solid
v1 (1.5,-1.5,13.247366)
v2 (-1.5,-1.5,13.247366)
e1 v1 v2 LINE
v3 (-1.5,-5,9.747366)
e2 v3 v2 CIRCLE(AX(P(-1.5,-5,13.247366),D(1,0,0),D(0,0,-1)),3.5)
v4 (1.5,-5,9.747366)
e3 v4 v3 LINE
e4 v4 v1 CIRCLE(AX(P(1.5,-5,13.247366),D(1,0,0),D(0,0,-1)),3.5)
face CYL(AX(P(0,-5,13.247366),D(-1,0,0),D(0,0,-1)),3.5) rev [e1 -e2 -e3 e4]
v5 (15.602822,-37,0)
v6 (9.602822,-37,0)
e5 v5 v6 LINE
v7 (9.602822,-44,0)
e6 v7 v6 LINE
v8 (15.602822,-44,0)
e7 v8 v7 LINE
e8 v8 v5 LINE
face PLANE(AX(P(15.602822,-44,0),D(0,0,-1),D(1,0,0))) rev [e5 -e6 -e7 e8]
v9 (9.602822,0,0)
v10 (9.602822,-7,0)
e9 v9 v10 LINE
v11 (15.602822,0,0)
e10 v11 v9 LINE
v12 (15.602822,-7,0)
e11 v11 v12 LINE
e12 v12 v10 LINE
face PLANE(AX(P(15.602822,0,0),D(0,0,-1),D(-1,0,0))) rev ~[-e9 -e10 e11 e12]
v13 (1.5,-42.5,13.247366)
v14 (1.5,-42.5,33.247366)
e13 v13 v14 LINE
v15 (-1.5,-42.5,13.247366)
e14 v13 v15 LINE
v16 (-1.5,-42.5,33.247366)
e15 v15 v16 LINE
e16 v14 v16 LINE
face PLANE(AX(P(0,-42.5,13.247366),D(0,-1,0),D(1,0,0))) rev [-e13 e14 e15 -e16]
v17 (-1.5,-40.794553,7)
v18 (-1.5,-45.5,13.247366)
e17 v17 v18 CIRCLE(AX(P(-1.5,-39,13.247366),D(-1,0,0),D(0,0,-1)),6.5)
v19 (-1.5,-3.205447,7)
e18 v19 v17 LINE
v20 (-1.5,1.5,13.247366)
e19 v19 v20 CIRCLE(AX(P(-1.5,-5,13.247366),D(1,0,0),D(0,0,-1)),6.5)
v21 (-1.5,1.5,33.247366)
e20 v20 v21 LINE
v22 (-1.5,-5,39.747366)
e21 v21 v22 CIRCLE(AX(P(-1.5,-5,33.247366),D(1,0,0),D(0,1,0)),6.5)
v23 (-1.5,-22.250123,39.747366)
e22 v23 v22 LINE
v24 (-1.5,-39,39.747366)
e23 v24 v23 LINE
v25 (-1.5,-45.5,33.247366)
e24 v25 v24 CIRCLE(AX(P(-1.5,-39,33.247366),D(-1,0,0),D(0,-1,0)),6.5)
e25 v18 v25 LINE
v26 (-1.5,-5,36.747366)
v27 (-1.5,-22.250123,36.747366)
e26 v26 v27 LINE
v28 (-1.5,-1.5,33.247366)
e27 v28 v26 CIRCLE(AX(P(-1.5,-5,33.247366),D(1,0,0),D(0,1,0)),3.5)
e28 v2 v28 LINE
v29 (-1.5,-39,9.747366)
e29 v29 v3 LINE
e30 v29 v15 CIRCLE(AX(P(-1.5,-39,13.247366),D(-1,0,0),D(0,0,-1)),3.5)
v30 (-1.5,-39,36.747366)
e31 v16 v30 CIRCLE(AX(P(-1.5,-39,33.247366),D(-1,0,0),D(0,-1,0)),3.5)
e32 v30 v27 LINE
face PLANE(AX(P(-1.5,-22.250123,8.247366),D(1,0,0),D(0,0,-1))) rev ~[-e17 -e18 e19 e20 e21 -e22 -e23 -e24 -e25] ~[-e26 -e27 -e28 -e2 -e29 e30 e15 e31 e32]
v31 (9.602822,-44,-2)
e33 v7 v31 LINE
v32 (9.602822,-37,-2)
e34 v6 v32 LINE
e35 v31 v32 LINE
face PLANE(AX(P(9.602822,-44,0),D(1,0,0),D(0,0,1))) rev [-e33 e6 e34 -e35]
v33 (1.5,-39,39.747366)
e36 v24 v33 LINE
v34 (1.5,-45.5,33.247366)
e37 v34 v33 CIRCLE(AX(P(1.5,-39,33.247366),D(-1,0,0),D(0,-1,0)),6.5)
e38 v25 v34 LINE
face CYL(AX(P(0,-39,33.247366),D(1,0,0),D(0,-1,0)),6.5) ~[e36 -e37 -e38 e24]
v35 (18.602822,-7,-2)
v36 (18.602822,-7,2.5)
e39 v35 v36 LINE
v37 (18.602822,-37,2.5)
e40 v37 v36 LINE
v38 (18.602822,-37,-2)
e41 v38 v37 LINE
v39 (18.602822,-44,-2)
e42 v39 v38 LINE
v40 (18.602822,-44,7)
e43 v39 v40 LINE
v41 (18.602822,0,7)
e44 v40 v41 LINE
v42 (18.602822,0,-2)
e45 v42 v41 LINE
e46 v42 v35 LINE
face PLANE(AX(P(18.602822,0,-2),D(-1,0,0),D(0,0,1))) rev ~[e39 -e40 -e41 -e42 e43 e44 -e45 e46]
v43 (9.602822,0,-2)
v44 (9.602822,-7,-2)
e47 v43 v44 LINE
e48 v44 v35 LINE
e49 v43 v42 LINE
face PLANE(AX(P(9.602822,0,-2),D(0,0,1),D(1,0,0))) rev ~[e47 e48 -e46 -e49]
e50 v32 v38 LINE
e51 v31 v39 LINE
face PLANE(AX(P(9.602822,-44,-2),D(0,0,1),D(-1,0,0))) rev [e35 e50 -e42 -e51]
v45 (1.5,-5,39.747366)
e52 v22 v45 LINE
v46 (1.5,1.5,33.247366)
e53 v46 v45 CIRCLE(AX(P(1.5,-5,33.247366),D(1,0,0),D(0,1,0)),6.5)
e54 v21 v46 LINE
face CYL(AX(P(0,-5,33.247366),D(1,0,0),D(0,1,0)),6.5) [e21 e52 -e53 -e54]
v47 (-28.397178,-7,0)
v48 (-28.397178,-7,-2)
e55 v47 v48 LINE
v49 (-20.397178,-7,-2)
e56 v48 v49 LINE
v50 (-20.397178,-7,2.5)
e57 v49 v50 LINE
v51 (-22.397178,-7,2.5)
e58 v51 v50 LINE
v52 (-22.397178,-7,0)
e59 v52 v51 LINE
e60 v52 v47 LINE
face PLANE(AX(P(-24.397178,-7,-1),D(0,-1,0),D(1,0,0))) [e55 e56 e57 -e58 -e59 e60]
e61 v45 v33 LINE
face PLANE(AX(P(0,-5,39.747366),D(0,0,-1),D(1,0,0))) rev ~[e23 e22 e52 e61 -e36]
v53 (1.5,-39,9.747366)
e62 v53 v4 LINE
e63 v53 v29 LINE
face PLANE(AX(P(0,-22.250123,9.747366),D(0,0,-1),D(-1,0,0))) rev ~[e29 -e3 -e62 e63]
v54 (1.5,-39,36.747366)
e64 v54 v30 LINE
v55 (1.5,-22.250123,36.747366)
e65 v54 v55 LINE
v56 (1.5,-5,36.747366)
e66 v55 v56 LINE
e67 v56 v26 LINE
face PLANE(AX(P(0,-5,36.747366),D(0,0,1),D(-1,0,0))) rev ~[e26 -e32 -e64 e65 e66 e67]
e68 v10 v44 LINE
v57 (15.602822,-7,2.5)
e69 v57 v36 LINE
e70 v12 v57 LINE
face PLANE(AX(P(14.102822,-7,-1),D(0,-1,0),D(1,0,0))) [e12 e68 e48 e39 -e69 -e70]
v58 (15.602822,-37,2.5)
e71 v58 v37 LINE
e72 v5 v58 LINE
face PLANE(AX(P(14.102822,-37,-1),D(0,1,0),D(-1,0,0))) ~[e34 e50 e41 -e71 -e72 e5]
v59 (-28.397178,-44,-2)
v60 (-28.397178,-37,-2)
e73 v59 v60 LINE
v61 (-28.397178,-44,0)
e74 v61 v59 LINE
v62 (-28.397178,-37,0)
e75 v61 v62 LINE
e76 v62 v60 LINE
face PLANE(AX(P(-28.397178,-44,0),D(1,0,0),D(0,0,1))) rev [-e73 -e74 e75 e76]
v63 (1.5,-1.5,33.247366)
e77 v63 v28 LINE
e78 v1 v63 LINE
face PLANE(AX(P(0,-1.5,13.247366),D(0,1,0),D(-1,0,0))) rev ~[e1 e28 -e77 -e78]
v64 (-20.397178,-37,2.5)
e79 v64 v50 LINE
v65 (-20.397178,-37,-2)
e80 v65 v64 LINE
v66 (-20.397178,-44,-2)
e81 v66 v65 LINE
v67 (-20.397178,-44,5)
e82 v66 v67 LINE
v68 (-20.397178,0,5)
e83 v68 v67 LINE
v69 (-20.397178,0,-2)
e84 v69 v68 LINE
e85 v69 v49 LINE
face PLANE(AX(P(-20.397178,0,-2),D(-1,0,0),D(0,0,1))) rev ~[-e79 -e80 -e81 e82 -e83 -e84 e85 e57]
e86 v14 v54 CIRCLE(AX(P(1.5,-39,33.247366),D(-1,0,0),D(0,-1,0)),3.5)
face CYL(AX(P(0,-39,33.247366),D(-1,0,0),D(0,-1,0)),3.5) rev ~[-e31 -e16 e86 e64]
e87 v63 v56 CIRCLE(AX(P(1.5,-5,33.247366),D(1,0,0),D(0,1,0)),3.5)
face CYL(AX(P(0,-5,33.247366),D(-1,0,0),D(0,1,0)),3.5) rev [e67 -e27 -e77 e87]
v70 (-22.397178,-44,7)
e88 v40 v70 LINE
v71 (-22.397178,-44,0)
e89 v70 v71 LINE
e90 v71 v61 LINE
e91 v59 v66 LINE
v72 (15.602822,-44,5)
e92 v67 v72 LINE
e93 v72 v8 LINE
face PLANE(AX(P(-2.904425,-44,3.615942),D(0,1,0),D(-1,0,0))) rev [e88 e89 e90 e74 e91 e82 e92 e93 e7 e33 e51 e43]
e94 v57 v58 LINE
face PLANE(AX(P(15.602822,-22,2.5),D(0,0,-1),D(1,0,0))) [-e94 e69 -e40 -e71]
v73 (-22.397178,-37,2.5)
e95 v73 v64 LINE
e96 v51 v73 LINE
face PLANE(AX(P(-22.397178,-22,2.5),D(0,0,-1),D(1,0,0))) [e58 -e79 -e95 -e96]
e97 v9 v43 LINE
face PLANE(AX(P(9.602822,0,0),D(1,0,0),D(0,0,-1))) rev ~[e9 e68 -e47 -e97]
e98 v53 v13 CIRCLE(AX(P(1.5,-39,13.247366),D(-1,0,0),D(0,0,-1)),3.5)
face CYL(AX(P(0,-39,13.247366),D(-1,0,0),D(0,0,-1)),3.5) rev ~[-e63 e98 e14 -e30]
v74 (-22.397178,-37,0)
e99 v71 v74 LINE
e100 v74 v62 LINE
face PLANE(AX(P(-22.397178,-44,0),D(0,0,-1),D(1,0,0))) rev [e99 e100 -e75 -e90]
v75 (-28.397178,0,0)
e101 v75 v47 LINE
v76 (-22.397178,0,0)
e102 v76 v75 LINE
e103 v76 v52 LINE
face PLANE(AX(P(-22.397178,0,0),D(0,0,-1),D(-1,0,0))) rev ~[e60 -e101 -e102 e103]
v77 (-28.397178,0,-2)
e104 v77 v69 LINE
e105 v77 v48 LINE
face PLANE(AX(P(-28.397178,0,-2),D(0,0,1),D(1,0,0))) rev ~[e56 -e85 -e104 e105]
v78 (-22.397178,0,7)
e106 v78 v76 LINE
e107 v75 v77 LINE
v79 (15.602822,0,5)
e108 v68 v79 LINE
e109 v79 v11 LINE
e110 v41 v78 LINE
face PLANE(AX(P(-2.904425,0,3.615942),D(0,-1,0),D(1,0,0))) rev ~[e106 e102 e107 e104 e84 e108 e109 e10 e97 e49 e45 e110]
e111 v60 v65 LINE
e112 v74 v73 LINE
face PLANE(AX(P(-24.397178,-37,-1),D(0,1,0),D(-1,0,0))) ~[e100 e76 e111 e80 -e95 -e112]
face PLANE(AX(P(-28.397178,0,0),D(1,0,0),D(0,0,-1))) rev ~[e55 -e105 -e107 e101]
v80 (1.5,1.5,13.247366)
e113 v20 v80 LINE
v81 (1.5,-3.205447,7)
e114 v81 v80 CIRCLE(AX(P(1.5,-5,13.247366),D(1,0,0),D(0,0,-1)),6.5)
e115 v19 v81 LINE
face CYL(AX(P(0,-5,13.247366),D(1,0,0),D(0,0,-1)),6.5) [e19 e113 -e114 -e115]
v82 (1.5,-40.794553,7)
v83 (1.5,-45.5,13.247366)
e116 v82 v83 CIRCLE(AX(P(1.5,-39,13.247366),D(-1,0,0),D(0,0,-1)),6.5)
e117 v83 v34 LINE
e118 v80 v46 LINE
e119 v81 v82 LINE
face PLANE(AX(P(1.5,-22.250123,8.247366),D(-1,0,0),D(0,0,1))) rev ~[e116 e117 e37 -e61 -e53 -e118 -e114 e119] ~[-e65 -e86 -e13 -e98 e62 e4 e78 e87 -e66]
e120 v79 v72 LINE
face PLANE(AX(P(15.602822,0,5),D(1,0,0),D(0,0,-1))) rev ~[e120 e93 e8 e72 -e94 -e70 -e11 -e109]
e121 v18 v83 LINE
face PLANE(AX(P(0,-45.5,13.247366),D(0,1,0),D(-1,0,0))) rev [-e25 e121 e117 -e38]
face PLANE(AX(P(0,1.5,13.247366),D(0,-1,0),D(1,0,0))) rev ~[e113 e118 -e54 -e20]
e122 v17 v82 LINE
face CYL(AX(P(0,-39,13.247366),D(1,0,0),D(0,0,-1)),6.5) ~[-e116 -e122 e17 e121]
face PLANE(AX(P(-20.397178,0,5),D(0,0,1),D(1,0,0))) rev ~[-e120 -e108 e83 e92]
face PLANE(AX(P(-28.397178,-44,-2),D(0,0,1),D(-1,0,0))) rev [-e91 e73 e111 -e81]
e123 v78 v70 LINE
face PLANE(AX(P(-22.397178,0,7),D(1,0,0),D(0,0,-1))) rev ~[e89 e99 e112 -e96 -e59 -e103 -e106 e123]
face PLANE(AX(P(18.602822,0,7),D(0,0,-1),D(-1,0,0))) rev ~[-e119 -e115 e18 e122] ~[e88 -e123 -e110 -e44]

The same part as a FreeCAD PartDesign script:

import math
import FreeCAD as App
import Part
import Sketcher

doc = App.newDocument("Part")
body = doc.addObject("PartDesign::Body", "Body")

# Sketch on XZ plane
sketch1 = body.newObject("Sketcher::SketchObject", "Sketch")
sketch1.AttachmentSupport = (doc.getObject("XZ_Plane"), [""])
sketch1.MapMode = "FlatFace"
sketch1.addGeometry([
    Part.LineSegment(App.Vector(-22.4, 0, 0), App.Vector(-28.4, 0, 0)),  # 0
    Part.LineSegment(App.Vector(-28.4, 0, 0), App.Vector(-28.4, -2, 0)),  # 1
    Part.LineSegment(App.Vector(-28.4, -2, 0), App.Vector(-20.4, -2, 0)),  # 2
    Part.LineSegment(App.Vector(-20.4, -2, 0), App.Vector(-20.4, 5, 0)),  # 3
    Part.LineSegment(App.Vector(-20.4, 5, 0), App.Vector(15.6, 5, 0)),  # 4
    Part.LineSegment(App.Vector(15.6, 5, 0), App.Vector(15.6, 0, 0)),  # 5
    Part.LineSegment(App.Vector(15.6, 0, 0), App.Vector(9.6, 0, 0)),  # 6
    Part.LineSegment(App.Vector(9.6, 0, 0), App.Vector(9.6, -2, 0)),  # 7
    Part.LineSegment(App.Vector(9.6, -2, 0), App.Vector(18.6, -2, 0)),  # 8
    Part.LineSegment(App.Vector(18.6, -2, 0), App.Vector(18.6, 7, 0)),  # 9
    Part.LineSegment(App.Vector(18.6, 7, 0), App.Vector(-22.4, 7, 0)),  # 10
    Part.LineSegment(App.Vector(-22.4, 7, 0), App.Vector(-22.4, 0, 0)),  # 11
], False)
sketch1.addConstraint([
    Sketcher.Constraint("Coincident", 0, 2, 1, 1),
    Sketcher.Constraint("Coincident", 1, 2, 2, 1),
    Sketcher.Constraint("Coincident", 2, 2, 3, 1),
    Sketcher.Constraint("Coincident", 3, 2, 4, 1),
    Sketcher.Constraint("Coincident", 4, 2, 5, 1),
    Sketcher.Constraint("Coincident", 5, 2, 6, 1),
    Sketcher.Constraint("Coincident", 6, 2, 7, 1),
    Sketcher.Constraint("Coincident", 7, 2, 8, 1),
    Sketcher.Constraint("Coincident", 8, 2, 9, 1),
    Sketcher.Constraint("Coincident", 9, 2, 10, 1),
    Sketcher.Constraint("Coincident", 10, 2, 11, 1),
    Sketcher.Constraint("Coincident", 11, 2, 0, 1),
    Sketcher.Constraint("Horizontal", 0),
    Sketcher.Constraint("Vertical", 1),
    Sketcher.Constraint("Horizontal", 2),
    Sketcher.Constraint("Vertical", 3),
    Sketcher.Constraint("Horizontal", 4),
    Sketcher.Constraint("Vertical", 5),
    Sketcher.Constraint("Horizontal", 6),
    Sketcher.Constraint("Vertical", 7),
    Sketcher.Constraint("Horizontal", 8),
    Sketcher.Constraint("Vertical", 9),
    Sketcher.Constraint("Horizontal", 10),
    Sketcher.Constraint("Vertical", 11),
    Sketcher.Constraint("PointOnObject", 0, 2, -1),
    Sketcher.Constraint("PointOnObject", 5, 2, -1),
    Sketcher.Constraint("Horizontal", 2, 2, 7, 2),
    Sketcher.Constraint("Equal", 0, 6),
    Sketcher.Constraint("Equal", 8, 9),
    Sketcher.Constraint("Equal", 3, 11),
    Sketcher.Constraint("DistanceX", 0, 2, 0, 1, 6.0),
    Sketcher.Constraint("DistanceX", 2, 1, 2, 2, 8.0),
    Sketcher.Constraint("DistanceX", 4, 1, 4, 2, 36.0),
    Sketcher.Constraint("DistanceX", 8, 1, 8, 2, 9.0),
    Sketcher.Constraint("DistanceY", 1, 2, 1, 1, 2.0),
    Sketcher.Constraint("DistanceX", 0, 2, -1, 1, 28.397178),
])
pad1 = body.newObject("PartDesign::Pad", "Pad")
pad1.Profile = sketch1
pad1.Length = 22

# Sketch on XZ plane
sketch2 = body.newObject("Sketcher::SketchObject", "Sketch001")
sketch2.AttachmentSupport = (doc.getObject("XZ_Plane"), [""])
sketch2.MapMode = "FlatFace"
sketch2.AttachmentOffset = App.Placement(App.Vector(0, 0, 22), App.Rotation())
sketch2.addGeometry([
    Part.LineSegment(App.Vector(-22.4, 0, 0), App.Vector(-28.4, 0, 0)),  # 0
    Part.LineSegment(App.Vector(-28.4, 0, 0), App.Vector(-28.4, -2, 0)),  # 1
    Part.LineSegment(App.Vector(-28.4, -2, 0), App.Vector(-20.4, -2, 0)),  # 2
    Part.LineSegment(App.Vector(-20.4, -2, 0), App.Vector(-20.4, 2.5, 0)),  # 3
    Part.LineSegment(App.Vector(-20.4, 2.5, 0), App.Vector(-22.4, 2.5, 0)),  # 4
    Part.LineSegment(App.Vector(-22.4, 2.5, 0), App.Vector(-22.4, 0, 0)),  # 5
    Part.LineSegment(App.Vector(18.6, -2, 0), App.Vector(18.6, 2.5, 0)),  # 6
    Part.LineSegment(App.Vector(18.6, 2.5, 0), App.Vector(15.6, 2.5, 0)),  # 7
    Part.LineSegment(App.Vector(15.6, 2.5, 0), App.Vector(15.6, 0, 0)),  # 8
    Part.LineSegment(App.Vector(15.6, 0, 0), App.Vector(9.6, 0, 0)),  # 9
    Part.LineSegment(App.Vector(9.6, 0, 0), App.Vector(9.6, -2, 0)),  # 10
    Part.LineSegment(App.Vector(9.6, -2, 0), App.Vector(18.6, -2, 0)),  # 11
], False)
sketch2.addConstraint([
    Sketcher.Constraint("Coincident", 0, 2, 1, 1),
    Sketcher.Constraint("Coincident", 1, 2, 2, 1),
    Sketcher.Constraint("Coincident", 2, 2, 3, 1),
    Sketcher.Constraint("Coincident", 3, 2, 4, 1),
    Sketcher.Constraint("Coincident", 4, 2, 5, 1),
    Sketcher.Constraint("Coincident", 5, 2, 0, 1),
    Sketcher.Constraint("Coincident", 6, 2, 7, 1),
    Sketcher.Constraint("Coincident", 7, 2, 8, 1),
    Sketcher.Constraint("Coincident", 8, 2, 9, 1),
    Sketcher.Constraint("Coincident", 9, 2, 10, 1),
    Sketcher.Constraint("Coincident", 10, 2, 11, 1),
    Sketcher.Constraint("Coincident", 11, 2, 6, 1),
    Sketcher.Constraint("Horizontal", 0),
    Sketcher.Constraint("Vertical", 1),
    Sketcher.Constraint("Horizontal", 2),
    Sketcher.Constraint("Vertical", 3),
    Sketcher.Constraint("Horizontal", 4),
    Sketcher.Constraint("Vertical", 5),
    Sketcher.Constraint("Vertical", 6),
    Sketcher.Constraint("Horizontal", 7),
    Sketcher.Constraint("Vertical", 8),
    Sketcher.Constraint("Horizontal", 9),
    Sketcher.Constraint("Vertical", 10),
    Sketcher.Constraint("Horizontal", 11),
    Sketcher.Constraint("PointOnObject", 0, 2, -1),
    Sketcher.Constraint("PointOnObject", 8, 2, -1),
    Sketcher.Constraint("Horizontal", 4, 2, 6, 2),
    Sketcher.Constraint("Horizontal", 2, 2, 10, 2),
    Sketcher.Constraint("Equal", 0, 9),
    Sketcher.Constraint("Equal", 4, 1),
    Sketcher.Constraint("DistanceX", 0, 2, 0, 1, 6.0),
    Sketcher.Constraint("DistanceX", 2, 1, 2, 2, 8.0),
    Sketcher.Constraint("DistanceX", 7, 2, 7, 1, 3.0),
    Sketcher.Constraint("DistanceY", 3, 1, 3, 2, 4.5),
    Sketcher.Constraint("DistanceX", 3, 2, 6, 2, 39.0),
    Sketcher.Constraint("DistanceX", 0, 2, -1, 1, 28.397178),
])
pocket1 = body.newObject("PartDesign::Pocket", "Pocket")
pocket1.Profile = sketch2
pocket1.Length = 15

# Sketch on XZ plane
sketch3 = body.newObject("Sketcher::SketchObject", "Sketch002")
sketch3.AttachmentSupport = (doc.getObject("XZ_Plane"), [""])
sketch3.MapMode = "FlatFace"
sketch3.AttachmentOffset = App.Placement(App.Vector(0, 0, 22), App.Rotation())
sketch3.addGeometry([
    Part.LineSegment(App.Vector(-1.5, 9.7, 0), App.Vector(-1.5, 6.7, 0)),
    Part.LineSegment(App.Vector(-1.5, 6.7, 0), App.Vector(1.5, 6.7, 0)),
    Part.LineSegment(App.Vector(1.5, 6.7, 0), App.Vector(1.5, 9.7, 0)),
    Part.LineSegment(App.Vector(1.5, 9.7, 0), App.Vector(-1.5, 9.7, 0)),
], False)
sketch3.addConstraint([
    Sketcher.Constraint("Coincident", 0, 2, 1, 1),
    Sketcher.Constraint("Coincident", 1, 2, 2, 1),
    Sketcher.Constraint("Coincident", 2, 2, 3, 1),
    Sketcher.Constraint("Coincident", 3, 2, 0, 1),
    Sketcher.Constraint("Vertical", 0),
    Sketcher.Constraint("Horizontal", 1),
    Sketcher.Constraint("Vertical", 2),
    Sketcher.Constraint("Horizontal", 3),
    Sketcher.Constraint("Equal", 3, 0),
    Sketcher.Constraint("DistanceX", 1, 1, 1, 2, 3.0),
    Sketcher.Constraint("DistanceX", 0, 2, -1, 1, 1.5),
    Sketcher.Constraint("DistanceY", -1, 1, 0, 2, 6.747366),
])

# Sketch on YZ plane
sketch4 = body.newObject("Sketcher::SketchObject", "Sketch003")
sketch4.AttachmentSupport = (doc.getObject("YZ_Plane"), [""])
sketch4.MapMode = "FlatFace"
sketch4.addGeometry([
    Part.LineSegment(App.Vector(-22, 8, 0), App.Vector(-5, 8, 0)),  # 0
    Part.ArcOfCircle(Part.Circle(App.Vector(-5, 13, 0), App.Vector(0, 0, 1), 5), math.radians(-90), math.radians(0)),  # 1
    Part.LineSegment(App.Vector(0, 13, 0), App.Vector(0, 33, 0)),  # 2
    Part.ArcOfCircle(Part.Circle(App.Vector(-5, 33, 0), App.Vector(0, 0, 1), 5), math.radians(0), math.radians(90)),  # 3
    Part.LineSegment(App.Vector(-5, 38, 0), App.Vector(-22, 38, 0)),  # 4
], False)
sketch4.addConstraint([
    Sketcher.Constraint("Tangent", 0, 2, 1, 1),
    Sketcher.Constraint("Tangent", 1, 2, 2, 1),
    Sketcher.Constraint("Tangent", 2, 2, 3, 1),
    Sketcher.Constraint("Tangent", 3, 2, 4, 1),
    Sketcher.Constraint("Horizontal", 0),
    Sketcher.Constraint("Vertical", 2),
    Sketcher.Constraint("Horizontal", 4),
    Sketcher.Constraint("Equal", 1, 3),
    Sketcher.Constraint("PointOnObject", 1, 2, -2),
    Sketcher.Constraint("Vertical", 0, 1, 4, 2),
    Sketcher.Constraint("Radius", 1, 5.0),
    Sketcher.Constraint("DistanceY", 2, 1, 2, 2, 20.0),
    Sketcher.Constraint("DistanceX", 0, 1, 0, 2, 17.250123),
    Sketcher.Constraint("DistanceY", -1, 1, 1, 3, 13.247366),
])
doc.recompute()

additivepipe = body.newObject("PartDesign::AdditivePipe", "AdditivePipe")
additivepipe.Profile = sketch3
additivepipe.Spine = (sketch4, ["Edge1", "Edge2", "Edge3", "Edge4", "Edge5"])
body2 = doc.addObject("PartDesign::Body", "Body001")
doc.recompute()

body2.BaseFeature = body
doc.recompute()

mirroring = doc.addObject("Part::Mirroring", "Mirroring")
mirroring.Source = body
mirroring.Base = App.Vector(0, -22, 0)
mirroring.Normal = App.Vector(0, -1, 0)
body3 = doc.addObject("PartDesign::Body", "Body002")
body3.BaseFeature = mirroring
boolean = body2.newObject("PartDesign::Boolean", "Boolean")
boolean.Type = "Fuse"
boolean.addObjects([body3])
doc.recompute()
mirroring.Visibility = False

doc.recompute()
